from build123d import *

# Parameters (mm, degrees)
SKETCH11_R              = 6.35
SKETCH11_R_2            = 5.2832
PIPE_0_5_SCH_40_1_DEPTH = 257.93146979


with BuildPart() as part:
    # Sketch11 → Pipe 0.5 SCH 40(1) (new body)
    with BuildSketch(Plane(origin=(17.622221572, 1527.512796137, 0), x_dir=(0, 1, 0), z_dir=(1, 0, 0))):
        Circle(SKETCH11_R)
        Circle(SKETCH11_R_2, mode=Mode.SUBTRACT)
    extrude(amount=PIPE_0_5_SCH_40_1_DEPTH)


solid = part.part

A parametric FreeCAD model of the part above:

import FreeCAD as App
import Part
import Sketcher
Q = App.Units.Quantity

doc = App.newDocument("Part")
body = doc.addObject("PartDesign::Body", "Body")

sketch1 = doc.addObject("Sketcher::SketchObject", "Sketch")
body.addObject(sketch1)
sketch1.AttachmentSupport = (doc.YZ_Plane, [""])
sketch1.MapMode = "FlatFace"
sketch1.AttachmentOffset = App.Placement(App.Vector(0, 0, 17.622222), App.Rotation())
sketch1.addGeometry([
    Part.Circle(App.Vector(1528, 0, 0), App.Vector(0, 0, 1), 6),
    Part.Circle(App.Vector(1528, 0, 0), App.Vector(0, 0, 1), 5),
], False)
sketch1.addConstraint([
    Sketcher.Constraint("Coincident", 1, 3, 0, 3),
    Sketcher.Constraint("PointOnObject", 0, 3, -1),
    Sketcher.Constraint("Diameter", 0, Q("0.5 in")),
    Sketcher.Constraint("Diameter", 1, Q("0.416 in")),
    Sketcher.Constraint("DistanceX", -1, 1, 0, 3, Q("1527.512796 mm")),
])
pad1 = doc.addObject("PartDesign::Pad", "Pad")
body.addObject(pad1)
pad1.Profile = sketch1
pad1.Length = 257.93147

doc.recompute()
